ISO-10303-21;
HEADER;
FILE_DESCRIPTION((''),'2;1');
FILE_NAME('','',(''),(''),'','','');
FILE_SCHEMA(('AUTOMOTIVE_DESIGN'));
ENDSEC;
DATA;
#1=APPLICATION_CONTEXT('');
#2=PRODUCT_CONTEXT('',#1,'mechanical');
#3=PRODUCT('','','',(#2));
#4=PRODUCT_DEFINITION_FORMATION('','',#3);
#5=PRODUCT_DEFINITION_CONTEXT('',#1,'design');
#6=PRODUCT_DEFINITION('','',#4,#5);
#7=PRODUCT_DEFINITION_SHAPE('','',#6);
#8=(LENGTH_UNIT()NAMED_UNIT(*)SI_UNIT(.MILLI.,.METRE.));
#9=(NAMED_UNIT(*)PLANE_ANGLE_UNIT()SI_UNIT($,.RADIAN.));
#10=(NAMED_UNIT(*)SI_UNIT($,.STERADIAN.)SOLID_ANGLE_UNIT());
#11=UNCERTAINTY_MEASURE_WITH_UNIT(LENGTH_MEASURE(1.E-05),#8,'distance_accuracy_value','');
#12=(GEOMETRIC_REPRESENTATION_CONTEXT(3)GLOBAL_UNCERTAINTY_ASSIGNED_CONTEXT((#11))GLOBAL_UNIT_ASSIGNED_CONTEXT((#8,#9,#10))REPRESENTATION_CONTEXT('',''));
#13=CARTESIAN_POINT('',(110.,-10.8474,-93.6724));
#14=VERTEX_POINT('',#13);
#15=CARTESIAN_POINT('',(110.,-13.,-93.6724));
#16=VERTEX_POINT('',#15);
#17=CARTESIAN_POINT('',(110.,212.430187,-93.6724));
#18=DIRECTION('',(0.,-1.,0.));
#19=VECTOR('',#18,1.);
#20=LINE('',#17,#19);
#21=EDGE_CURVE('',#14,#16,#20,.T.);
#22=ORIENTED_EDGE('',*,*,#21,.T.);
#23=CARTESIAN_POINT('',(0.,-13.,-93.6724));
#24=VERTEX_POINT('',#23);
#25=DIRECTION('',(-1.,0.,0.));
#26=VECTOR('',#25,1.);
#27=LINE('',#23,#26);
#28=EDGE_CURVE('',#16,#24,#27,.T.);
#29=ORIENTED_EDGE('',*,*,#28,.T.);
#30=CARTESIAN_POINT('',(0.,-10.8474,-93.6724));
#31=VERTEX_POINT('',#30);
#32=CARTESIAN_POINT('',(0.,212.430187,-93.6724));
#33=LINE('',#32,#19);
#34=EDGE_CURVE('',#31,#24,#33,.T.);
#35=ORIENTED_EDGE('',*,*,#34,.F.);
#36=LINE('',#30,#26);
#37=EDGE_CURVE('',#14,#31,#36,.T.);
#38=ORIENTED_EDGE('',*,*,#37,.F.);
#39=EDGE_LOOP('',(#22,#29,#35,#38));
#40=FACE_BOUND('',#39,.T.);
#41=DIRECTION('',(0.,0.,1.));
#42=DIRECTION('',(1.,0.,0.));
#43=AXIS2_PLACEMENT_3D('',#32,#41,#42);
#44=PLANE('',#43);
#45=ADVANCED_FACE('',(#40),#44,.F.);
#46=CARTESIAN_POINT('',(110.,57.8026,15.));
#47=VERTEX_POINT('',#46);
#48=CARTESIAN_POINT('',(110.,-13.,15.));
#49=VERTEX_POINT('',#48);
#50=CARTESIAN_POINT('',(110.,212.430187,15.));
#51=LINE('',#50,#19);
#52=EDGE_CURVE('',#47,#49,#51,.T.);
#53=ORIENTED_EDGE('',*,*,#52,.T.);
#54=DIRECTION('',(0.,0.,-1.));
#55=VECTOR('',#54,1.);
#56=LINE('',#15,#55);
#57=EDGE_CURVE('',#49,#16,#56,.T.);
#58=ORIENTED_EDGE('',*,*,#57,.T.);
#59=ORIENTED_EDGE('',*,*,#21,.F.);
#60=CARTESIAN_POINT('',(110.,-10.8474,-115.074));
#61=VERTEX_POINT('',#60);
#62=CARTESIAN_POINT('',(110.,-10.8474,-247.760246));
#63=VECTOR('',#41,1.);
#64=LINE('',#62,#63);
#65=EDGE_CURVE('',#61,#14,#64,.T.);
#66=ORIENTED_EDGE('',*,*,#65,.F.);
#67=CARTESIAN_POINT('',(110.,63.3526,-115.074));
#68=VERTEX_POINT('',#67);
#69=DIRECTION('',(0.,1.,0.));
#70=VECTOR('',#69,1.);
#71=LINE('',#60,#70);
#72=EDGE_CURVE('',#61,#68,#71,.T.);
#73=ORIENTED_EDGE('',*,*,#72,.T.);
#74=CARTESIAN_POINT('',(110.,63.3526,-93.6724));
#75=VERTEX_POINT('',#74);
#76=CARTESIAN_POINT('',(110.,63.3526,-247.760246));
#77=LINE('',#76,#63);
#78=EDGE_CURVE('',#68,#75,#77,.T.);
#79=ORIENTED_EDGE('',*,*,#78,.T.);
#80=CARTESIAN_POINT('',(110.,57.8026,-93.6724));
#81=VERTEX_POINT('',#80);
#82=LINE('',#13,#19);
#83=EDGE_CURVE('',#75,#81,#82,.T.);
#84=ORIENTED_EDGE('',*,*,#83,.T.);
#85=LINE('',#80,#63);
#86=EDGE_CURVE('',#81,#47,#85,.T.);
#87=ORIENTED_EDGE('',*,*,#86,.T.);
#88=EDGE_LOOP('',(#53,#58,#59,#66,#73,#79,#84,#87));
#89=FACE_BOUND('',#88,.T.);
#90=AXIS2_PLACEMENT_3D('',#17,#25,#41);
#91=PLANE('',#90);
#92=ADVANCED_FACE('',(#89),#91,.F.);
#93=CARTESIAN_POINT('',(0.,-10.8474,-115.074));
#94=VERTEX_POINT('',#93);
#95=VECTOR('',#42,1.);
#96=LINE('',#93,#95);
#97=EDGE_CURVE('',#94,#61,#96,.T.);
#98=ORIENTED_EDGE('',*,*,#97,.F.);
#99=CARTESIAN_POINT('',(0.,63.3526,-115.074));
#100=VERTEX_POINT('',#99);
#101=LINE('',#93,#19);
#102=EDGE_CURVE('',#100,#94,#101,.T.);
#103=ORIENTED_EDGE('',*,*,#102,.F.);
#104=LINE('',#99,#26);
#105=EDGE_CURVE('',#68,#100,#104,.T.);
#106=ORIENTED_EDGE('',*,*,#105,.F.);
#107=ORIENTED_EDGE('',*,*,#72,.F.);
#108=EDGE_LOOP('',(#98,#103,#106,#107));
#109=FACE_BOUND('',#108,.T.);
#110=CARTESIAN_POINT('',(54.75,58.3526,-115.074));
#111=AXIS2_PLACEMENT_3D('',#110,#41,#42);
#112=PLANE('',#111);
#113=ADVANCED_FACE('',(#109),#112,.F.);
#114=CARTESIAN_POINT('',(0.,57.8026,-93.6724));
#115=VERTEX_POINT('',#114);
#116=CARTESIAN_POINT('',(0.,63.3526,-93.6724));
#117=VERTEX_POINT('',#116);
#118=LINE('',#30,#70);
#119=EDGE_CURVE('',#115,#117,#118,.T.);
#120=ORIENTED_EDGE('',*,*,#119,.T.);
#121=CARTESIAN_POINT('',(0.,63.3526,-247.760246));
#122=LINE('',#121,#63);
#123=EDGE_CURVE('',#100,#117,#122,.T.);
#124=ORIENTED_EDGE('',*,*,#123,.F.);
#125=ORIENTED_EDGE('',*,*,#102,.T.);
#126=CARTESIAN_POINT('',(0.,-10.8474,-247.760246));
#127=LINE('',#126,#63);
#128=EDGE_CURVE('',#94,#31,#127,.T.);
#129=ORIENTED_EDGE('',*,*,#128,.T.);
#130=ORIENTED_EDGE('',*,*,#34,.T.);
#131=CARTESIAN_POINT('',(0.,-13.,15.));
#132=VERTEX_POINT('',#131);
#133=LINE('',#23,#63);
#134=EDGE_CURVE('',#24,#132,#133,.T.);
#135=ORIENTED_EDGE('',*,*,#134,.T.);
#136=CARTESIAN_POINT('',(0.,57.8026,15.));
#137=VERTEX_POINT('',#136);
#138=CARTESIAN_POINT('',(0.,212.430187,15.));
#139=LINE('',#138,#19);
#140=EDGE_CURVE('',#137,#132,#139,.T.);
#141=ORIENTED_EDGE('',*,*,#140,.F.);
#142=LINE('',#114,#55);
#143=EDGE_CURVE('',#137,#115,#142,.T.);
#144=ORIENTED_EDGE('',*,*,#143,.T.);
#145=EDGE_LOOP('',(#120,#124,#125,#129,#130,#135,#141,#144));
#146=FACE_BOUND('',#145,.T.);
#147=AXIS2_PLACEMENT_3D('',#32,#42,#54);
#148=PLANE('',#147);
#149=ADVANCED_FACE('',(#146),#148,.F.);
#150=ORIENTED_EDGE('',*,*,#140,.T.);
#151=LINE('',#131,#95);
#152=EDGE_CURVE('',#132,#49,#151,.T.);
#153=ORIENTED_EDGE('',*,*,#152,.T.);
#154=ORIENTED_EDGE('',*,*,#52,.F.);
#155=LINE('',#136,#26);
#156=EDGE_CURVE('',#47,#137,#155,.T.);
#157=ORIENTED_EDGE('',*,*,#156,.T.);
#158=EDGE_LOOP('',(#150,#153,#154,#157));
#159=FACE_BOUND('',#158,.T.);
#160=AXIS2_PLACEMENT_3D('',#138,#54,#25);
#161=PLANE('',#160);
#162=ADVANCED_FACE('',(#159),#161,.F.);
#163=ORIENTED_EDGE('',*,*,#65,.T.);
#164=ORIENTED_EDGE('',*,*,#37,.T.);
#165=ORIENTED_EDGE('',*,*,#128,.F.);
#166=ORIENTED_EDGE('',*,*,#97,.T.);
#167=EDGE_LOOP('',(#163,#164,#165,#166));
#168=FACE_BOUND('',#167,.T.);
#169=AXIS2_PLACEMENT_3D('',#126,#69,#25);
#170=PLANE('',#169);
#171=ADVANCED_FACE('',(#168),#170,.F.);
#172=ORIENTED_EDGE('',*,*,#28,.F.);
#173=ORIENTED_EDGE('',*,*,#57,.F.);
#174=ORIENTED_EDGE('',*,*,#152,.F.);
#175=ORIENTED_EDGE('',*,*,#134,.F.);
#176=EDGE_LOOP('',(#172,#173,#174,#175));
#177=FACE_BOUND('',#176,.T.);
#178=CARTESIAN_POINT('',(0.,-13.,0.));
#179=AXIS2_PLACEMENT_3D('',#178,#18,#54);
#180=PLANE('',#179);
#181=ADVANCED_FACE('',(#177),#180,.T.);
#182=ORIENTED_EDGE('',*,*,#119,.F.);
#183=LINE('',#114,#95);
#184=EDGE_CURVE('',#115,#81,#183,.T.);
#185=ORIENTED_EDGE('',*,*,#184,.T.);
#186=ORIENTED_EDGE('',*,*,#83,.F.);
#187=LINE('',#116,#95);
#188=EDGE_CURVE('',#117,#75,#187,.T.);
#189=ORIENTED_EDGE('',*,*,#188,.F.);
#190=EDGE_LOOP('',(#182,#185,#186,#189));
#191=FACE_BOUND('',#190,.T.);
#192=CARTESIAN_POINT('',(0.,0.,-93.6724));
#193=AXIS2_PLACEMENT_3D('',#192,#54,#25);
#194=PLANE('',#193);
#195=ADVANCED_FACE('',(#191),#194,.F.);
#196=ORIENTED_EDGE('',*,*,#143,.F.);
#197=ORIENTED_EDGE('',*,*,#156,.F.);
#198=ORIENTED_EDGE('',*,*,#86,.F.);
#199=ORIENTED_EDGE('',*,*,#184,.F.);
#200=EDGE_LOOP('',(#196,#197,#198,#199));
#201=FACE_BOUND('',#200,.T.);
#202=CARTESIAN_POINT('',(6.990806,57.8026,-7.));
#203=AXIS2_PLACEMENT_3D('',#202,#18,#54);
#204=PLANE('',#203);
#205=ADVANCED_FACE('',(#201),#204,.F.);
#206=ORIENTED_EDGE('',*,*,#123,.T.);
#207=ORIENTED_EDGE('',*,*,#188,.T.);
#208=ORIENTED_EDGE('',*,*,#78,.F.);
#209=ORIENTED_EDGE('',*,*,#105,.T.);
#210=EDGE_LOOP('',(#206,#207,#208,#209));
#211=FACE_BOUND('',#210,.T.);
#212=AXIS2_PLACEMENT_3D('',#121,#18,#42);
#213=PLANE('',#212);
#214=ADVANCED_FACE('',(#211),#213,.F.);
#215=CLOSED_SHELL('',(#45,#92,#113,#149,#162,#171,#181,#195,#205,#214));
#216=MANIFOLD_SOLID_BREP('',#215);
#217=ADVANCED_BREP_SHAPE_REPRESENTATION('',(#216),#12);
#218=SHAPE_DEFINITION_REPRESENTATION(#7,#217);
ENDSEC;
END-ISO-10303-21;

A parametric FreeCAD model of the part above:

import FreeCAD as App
import Part
import Sketcher
from FreeCAD import Vector
Q = App.Units.Quantity


def add_polygon(sketch, points):
    """Adds a closed chain of lines whose ends are joined by coincident constraints."""
    first, n = sketch.GeometryCount, len(points)
    for a, b in zip(points, points[1:] + points[:1]):
        sketch.addGeometry(Part.LineSegment(App.Vector(*a, 0), App.Vector(*b, 0)), False)
    for i in range(n):
        sketch.addConstraint(Sketcher.Constraint("Coincident", first + i, 2, first + (i + 1) % n, 1))

doc = App.newDocument("Part")
body = doc.addObject("PartDesign::Body", "Body")

sketch1 = doc.addObject("Sketcher::SketchObject", "Sketch")
body.addObject(sketch1)
sketch1.AttachmentSupport = (doc.XZ_Plane, [""])
sketch1.MapMode = "FlatFace"
add_polygon(sketch1, [(0, -94), (0, 15), (110, 15), (110, -94)])
sketch1.addConstraint([
    Sketcher.Constraint("Vertical", 0),
    Sketcher.Constraint("Horizontal", 1),
    Sketcher.Constraint("Vertical", 2),
    Sketcher.Constraint("Horizontal", 3),
    Sketcher.Constraint("PointOnObject", 0, 2, -2),
    Sketcher.Constraint("DistanceX", 1, 1, 1, 2, Q("110 mm")),
    Sketcher.Constraint("DistanceY", -1, 1, 0, 2, Q("15 mm")),
    Sketcher.Constraint("DistanceY", 0, 1, 0, 2, Q("108.6724 mm")),
])
pad1 = doc.addObject("PartDesign::Pad", "Pad")
body.addObject(pad1)
pad1.Profile = sketch1
pad1.Type = "TwoLengths"
pad1.Length = 57.8026
pad1.Length2 = 13
pad1.Reversed = True

sketch2 = doc.addObject("Sketcher::SketchObject", "Sketch001")
body.addObject(sketch2)
sketch2.AttachmentSupport = (doc.XY_Plane, [""])
sketch2.MapMode = "FlatFace"
sketch2.AttachmentOffset = App.Placement(Vector(0, 0, -93.6724), App.Rotation())
add_polygon(sketch2, [(110, 63), (110, -11), (0, -11), (0, 63)])
sketch2.addConstraint([
    Sketcher.Constraint("Vertical", 0),
    Sketcher.Constraint("Horizontal", 1),
    Sketcher.Constraint("Vertical", 2),
    Sketcher.Constraint("Horizontal", 3),
    Sketcher.Constraint("PointOnObject", 1, 2, -2),
    Sketcher.Constraint("DistanceX", 1, 2, 1, 1, Q("110 mm")),
    Sketcher.Constraint("DistanceY", 0, 2, 0, 1, Q("74.2 mm")),
    Sketcher.Constraint("DistanceY", 0, 2, -1, 1, Q("10.8474 mm")),
])
pad2 = doc.addObject("PartDesign::Pad", "Pad001")
body.addObject(pad2)
pad2.Profile = sketch2
pad2.Length = 21.4016
pad2.Reversed = True

doc.recompute()
